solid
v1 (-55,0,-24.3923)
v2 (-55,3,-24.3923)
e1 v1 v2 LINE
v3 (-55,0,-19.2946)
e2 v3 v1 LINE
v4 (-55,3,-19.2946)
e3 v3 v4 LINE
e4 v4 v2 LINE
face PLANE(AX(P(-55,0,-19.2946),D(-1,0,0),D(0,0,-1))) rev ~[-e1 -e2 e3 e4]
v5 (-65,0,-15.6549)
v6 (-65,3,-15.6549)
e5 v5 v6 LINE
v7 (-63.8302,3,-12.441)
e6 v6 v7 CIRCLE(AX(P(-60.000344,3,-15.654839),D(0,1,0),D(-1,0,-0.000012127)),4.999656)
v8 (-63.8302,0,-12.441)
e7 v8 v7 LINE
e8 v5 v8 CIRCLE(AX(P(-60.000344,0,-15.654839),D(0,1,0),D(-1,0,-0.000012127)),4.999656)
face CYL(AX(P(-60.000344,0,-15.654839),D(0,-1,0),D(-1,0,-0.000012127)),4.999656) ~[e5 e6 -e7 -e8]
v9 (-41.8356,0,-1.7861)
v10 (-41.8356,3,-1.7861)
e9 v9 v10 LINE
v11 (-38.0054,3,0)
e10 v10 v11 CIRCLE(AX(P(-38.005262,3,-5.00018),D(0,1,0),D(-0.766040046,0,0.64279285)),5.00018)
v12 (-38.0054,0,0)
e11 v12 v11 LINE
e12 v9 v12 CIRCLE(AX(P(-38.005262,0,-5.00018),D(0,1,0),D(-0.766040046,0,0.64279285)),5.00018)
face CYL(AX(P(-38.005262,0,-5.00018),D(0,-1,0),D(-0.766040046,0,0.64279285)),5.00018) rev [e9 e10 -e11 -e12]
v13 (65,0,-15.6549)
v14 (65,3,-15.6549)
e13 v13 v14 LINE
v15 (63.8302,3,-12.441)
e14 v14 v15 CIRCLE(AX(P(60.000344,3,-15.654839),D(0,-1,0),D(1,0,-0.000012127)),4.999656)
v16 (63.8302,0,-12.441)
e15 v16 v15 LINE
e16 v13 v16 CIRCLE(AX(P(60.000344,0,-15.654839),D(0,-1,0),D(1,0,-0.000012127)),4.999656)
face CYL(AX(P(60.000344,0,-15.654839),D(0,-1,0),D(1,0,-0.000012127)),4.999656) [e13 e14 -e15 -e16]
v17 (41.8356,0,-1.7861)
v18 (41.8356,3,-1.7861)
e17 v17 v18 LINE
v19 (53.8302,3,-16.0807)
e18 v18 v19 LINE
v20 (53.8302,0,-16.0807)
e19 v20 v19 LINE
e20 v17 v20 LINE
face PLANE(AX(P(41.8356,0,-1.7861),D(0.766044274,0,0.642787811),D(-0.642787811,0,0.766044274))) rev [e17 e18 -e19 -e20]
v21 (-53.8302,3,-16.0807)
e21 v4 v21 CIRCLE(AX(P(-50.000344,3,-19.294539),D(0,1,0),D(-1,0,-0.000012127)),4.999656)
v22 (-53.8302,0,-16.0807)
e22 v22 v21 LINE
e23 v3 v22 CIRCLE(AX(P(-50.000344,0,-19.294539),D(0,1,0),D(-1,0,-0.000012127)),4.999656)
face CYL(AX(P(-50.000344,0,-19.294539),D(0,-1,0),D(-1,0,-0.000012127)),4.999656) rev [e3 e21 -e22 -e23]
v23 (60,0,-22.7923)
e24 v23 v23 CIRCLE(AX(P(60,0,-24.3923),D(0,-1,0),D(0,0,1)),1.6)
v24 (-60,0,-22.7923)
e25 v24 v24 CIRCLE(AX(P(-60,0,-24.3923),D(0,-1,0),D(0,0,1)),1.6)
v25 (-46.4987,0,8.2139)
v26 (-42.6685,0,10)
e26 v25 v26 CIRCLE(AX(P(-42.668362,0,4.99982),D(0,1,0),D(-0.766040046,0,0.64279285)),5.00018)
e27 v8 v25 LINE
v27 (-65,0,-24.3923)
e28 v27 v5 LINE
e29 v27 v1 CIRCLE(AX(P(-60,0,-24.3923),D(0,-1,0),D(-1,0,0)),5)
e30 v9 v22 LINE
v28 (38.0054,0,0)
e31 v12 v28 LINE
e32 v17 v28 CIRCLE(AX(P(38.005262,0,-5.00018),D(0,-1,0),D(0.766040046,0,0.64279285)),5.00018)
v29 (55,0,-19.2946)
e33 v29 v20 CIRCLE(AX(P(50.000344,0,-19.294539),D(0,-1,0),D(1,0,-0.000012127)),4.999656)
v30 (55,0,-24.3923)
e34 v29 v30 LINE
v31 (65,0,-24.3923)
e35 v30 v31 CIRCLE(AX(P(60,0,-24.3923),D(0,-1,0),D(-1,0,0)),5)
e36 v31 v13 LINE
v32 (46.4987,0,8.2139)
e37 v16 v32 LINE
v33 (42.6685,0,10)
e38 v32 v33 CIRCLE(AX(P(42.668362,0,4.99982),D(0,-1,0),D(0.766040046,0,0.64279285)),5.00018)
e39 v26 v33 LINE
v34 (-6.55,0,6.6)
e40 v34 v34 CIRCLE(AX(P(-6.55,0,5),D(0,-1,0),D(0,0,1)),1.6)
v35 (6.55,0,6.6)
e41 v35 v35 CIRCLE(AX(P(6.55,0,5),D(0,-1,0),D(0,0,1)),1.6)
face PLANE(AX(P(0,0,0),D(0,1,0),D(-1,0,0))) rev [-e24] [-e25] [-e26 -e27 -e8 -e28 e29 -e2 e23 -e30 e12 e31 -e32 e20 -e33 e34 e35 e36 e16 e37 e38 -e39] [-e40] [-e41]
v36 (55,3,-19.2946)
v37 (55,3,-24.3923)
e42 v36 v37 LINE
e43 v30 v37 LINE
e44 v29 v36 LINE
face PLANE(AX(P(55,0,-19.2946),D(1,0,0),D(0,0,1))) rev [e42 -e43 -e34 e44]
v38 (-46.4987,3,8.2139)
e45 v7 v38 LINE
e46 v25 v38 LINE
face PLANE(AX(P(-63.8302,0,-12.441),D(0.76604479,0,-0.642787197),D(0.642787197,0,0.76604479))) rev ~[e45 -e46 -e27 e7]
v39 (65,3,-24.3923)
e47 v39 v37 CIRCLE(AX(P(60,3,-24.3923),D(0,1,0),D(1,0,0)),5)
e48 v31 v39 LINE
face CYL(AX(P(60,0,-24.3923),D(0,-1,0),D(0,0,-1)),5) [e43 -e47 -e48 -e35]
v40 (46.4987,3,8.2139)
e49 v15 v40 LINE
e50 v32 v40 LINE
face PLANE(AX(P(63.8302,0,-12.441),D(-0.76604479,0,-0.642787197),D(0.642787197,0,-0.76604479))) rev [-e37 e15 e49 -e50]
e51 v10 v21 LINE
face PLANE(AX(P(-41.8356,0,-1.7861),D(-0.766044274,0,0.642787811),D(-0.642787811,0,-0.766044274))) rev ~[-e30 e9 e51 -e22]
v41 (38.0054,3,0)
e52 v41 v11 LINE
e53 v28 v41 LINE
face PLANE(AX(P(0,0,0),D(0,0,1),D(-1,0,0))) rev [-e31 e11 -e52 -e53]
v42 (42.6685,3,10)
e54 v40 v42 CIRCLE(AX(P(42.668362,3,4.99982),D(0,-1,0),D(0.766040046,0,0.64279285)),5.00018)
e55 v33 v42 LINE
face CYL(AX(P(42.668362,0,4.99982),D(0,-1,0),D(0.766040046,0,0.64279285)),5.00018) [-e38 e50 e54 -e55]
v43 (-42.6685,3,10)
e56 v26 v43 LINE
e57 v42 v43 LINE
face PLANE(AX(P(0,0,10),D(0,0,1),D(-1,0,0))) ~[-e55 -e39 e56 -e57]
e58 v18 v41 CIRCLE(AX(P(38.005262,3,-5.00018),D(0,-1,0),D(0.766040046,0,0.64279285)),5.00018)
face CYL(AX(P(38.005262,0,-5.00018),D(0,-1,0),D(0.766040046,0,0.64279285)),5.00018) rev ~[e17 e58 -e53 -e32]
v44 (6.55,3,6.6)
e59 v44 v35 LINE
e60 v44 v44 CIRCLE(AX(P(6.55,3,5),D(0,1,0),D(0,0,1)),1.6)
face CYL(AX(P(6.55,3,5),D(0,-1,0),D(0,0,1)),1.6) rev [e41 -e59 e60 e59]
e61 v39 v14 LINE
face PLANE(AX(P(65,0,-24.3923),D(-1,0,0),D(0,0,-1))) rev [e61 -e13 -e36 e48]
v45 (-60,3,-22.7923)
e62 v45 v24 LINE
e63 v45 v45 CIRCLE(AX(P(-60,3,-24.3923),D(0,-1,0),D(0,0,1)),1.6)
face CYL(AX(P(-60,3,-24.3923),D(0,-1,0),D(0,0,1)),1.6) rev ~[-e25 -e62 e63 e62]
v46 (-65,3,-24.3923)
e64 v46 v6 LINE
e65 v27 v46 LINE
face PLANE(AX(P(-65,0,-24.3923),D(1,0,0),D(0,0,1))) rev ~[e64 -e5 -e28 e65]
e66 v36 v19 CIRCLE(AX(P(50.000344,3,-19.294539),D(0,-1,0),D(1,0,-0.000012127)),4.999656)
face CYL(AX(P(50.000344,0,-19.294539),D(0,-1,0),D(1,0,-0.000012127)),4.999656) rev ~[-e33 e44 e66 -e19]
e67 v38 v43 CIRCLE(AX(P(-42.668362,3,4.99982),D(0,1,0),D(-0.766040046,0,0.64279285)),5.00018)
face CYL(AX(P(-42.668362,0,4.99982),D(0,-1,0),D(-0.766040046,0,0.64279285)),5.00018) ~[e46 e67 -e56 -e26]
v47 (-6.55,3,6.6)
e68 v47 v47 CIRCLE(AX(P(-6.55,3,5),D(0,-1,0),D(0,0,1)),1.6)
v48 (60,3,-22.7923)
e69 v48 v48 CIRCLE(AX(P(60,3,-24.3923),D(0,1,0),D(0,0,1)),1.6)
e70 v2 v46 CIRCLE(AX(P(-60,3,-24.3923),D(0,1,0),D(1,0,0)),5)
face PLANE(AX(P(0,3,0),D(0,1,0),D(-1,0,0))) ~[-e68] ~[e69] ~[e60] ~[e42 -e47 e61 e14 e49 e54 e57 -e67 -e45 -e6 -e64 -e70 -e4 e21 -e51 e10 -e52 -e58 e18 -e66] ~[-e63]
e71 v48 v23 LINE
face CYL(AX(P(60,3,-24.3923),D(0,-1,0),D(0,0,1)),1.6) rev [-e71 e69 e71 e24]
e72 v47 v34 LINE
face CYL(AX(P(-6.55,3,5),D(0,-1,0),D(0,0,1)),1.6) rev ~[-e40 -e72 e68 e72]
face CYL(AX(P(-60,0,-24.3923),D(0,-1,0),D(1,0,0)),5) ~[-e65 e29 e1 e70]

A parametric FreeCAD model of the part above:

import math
import FreeCAD as App
import Part
import Sketcher

V = App.Vector
Q = App.Units.Quantity

doc = App.newDocument("Part")
body = doc.addObject("PartDesign::Body", "Body")

sketch1 = doc.addObject("Sketcher::SketchObject", "Sketch")
body.addObject(sketch1)
sketch1.AttachmentSupport = (doc.XZ_Plane, [""])
sketch1.MapMode = "FlatFace"
sketch1.addGeometry([
    Part.LineSegment(V(0, 10, 0), V(0, 0, 0)),
    Part.LineSegment(V(0, 0, 0), V(-38, 0, 0)),
    Part.ArcOfCircle(Part.Circle(V(-38, -5, 0), V(0, 0, 1), 5), math.radians(90), math.radians(140)),
    Part.LineSegment(V(-41.8, -1.8, 0), V(-53.8, -16.1, 0)),
    Part.ArcOfCircle(Part.Circle(V(-50, -19.3, 0), V(0, 0, 1), 5), math.radians(140), math.radians(180)),
    Part.LineSegment(V(-55, -19.3, 0), V(-55, -24.4, 0)),
    Part.ArcOfCircle(Part.Circle(V(-60, -24.4, 0), V(0, 0, 1), 5), math.radians(180), math.radians(360)),
    Part.LineSegment(V(-65, -24.4, 0), V(-65, -15.7, 0)),
    Part.ArcOfCircle(Part.Circle(V(-60, -15.7, 0), V(0, 0, 1), 5), math.radians(140), math.radians(180)),
    Part.LineSegment(V(-63.8, -12.4, 0), V(-46.5, 8.2, 0)),
    Part.ArcOfCircle(Part.Circle(V(-42.7, 5, 0), V(0, 0, 1), 5), math.radians(90), math.radians(140)),
    Part.LineSegment(V(-42.7, 10, 0), V(0, 10, 0)),
], False)
sketch1.addConstraint([
    Sketcher.Constraint("Coincident", 0, 2, 1, 1),
    Sketcher.Constraint("Tangent", 1, 2, 2, 1),
    Sketcher.Constraint("Tangent", 2, 2, 3, 1),
    Sketcher.Constraint("Tangent", 3, 2, 4, 1),
    Sketcher.Constraint("Tangent", 4, 2, 5, 1),
    Sketcher.Constraint("Tangent", 5, 2, 6, 2),
    Sketcher.Constraint("Tangent", 6, 1, 7, 1),
    Sketcher.Constraint("Tangent", 7, 2, 8, 2),
    Sketcher.Constraint("Tangent", 8, 1, 9, 1),
    Sketcher.Constraint("Tangent", 9, 2, 10, 2),
    Sketcher.Constraint("Tangent", 10, 1, 11, 1),
    Sketcher.Constraint("Coincident", 11, 2, 0, 1),
    Sketcher.Constraint("Vertical", 0),
    Sketcher.Constraint("Horizontal", 1),
    Sketcher.Constraint("Vertical", 5),
    Sketcher.Constraint("Vertical", 7),
    Sketcher.Constraint("Horizontal", 11),
    Sketcher.Constraint("Coincident", 0, 2, -1, 1),
    Sketcher.Constraint("Equal", 2, 4),
    Sketcher.Constraint("Equal", 4, 6),
    Sketcher.Constraint("Equal", 6, 8),
    Sketcher.Constraint("Equal", 8, 10),
    Sketcher.Constraint("Parallel", 3, 9),
    Sketcher.Constraint("Radius", 2, Q("5 mm")),
    Sketcher.Constraint("DistanceY", 0, 2, 0, 1, Q("10 mm")),
    Sketcher.Constraint("Angle", 3, Q("-130 deg")),
    Sketcher.Constraint("DistanceX", 4, 3, -1, 1, Q("50 mm")),
    Sketcher.Constraint("Distance", 9, Q("26.963 mm")),
    Sketcher.Constraint("DistanceX", 1, 2, 1, 1, Q("38.0054 mm")),
    Sketcher.Constraint("DistanceY", 5, 2, 5, 1, Q("5.0977 mm")),
])
pad1 = doc.addObject("PartDesign::Pad", "Pad")
body.addObject(pad1)
pad1.Profile = sketch1
pad1.Length = 3
pad1.Reversed = True

sketch2 = doc.addObject("Sketcher::SketchObject", "Sketch001")
body.addObject(sketch2)
sketch2.AttachmentSupport = (doc.XZ_Plane, [""])
sketch2.MapMode = "FlatFace"
sketch2.AttachmentOffset = App.Placement(V(0, 0, -3), App.Rotation())
sketch2.addGeometry([
    Part.Circle(V(-6.5, 5, 0), V(0, 0, 1), 1.6),
    Part.Circle(V(-60, -24.4, 0), V(0, 0, 1), 1.6),
], False)
sketch2.addConstraint([
    Sketcher.Constraint("Equal", 0, 1),
    Sketcher.Constraint("Diameter", 0, Q("3.2 mm")),
    Sketcher.Constraint("DistanceY", -1, 1, 0, 3, Q("5 mm")),
    Sketcher.Constraint("DistanceX", 1, 3, -1, 1, Q("60 mm")),
    Sketcher.Constraint("DistanceX", 0, 3, -1, 1, Q("6.55 mm")),
    Sketcher.Constraint("DistanceY", 1, 3, -1, 1, Q("24.3923 mm")),
])
doc.recompute()
hole = doc.addObject("PartDesign::Hole", "Hole")
body.addObject(hole)
hole.Profile = sketch2
hole.ThreadType = "None"
hole.Diameter = 3.2
hole.DepthType = "ThroughAll"
hole.Reversed = True
doc.recompute()

mirrored = doc.addObject("PartDesign::Mirrored", "Mirrored")
body.addObject(mirrored)
mirrored.Originals = [pad1, hole]
mirrored.MirrorPlane = (doc.YZ_Plane, [""])
body.Tip = mirrored

doc.recompute()
